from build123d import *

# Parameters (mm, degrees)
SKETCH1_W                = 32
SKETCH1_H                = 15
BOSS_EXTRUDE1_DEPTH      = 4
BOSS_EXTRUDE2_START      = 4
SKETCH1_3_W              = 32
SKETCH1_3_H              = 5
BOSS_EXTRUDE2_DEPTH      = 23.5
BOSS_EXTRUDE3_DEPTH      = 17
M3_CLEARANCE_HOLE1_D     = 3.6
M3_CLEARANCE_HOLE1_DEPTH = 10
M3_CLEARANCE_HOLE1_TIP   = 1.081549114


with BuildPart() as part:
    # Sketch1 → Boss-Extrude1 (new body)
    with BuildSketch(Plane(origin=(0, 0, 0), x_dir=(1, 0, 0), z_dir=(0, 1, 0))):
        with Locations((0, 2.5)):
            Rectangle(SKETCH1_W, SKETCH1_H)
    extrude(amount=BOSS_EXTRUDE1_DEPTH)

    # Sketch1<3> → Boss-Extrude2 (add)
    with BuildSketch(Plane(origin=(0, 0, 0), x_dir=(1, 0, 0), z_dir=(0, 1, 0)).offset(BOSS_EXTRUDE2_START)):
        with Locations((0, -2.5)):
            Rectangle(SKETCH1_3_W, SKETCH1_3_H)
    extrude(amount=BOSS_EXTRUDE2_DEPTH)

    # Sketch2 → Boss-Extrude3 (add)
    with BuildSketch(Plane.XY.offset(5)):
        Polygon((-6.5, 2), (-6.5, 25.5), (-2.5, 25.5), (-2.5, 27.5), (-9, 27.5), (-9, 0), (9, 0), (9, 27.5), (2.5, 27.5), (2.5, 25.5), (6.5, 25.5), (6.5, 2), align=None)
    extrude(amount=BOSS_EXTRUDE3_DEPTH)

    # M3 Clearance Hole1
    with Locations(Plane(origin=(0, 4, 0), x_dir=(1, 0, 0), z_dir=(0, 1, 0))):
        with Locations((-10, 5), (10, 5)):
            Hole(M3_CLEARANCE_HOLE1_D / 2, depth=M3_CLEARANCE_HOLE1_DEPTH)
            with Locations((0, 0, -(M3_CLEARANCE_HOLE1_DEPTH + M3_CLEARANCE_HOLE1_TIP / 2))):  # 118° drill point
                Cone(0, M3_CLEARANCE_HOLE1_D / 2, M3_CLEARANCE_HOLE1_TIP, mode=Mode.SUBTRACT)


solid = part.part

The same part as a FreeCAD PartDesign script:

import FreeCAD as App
import Part
import Sketcher
from FreeCAD import Vector


def add_polygon(sketch, points):
    """Adds a closed chain of lines whose ends are joined by coincident constraints."""
    first, n = sketch.GeometryCount, len(points)
    for a, b in zip(points, points[1:] + points[:1]):
        sketch.addGeometry(Part.LineSegment(App.Vector(*a, 0), App.Vector(*b, 0)), False)
    for i in range(n):
        sketch.addConstraint(Sketcher.Constraint("Coincident", first + i, 2, first + (i + 1) % n, 1))

doc = App.newDocument("Part")
body = doc.addObject("PartDesign::Body", "Body")

sketch1 = body.newObject("Sketcher::SketchObject", "Sketch")
sketch1.AttachmentSupport = (doc.getObject("XZ_Plane"), [""])
sketch1.MapMode = "FlatFace"
add_polygon(sketch1, [(-16, -10), (-16, 5), (16, 5), (16, -10)])
sketch1.addConstraint([
    Sketcher.Constraint("Vertical", 0),
    Sketcher.Constraint("Horizontal", 1),
    Sketcher.Constraint("Vertical", 2),
    Sketcher.Constraint("Horizontal", 3),
    Sketcher.Constraint("DistanceX", 1, 1, 1, 2, 32.0),
    Sketcher.Constraint("DistanceY", 0, 1, 0, 2, 15.0),
    Sketcher.Constraint("DistanceX", 0, 2, -1, 1, 16.0),
    Sketcher.Constraint("DistanceY", -1, 1, 0, 2, 5.0),
])
pad1 = body.newObject("PartDesign::Pad", "Pad")
pad1.Profile = sketch1
pad1.Length = 4
pad1.Reversed = True

sketch2 = body.newObject("Sketcher::SketchObject", "Sketch001")
sketch2.AttachmentSupport = (doc.getObject("XZ_Plane"), [""])
sketch2.MapMode = "FlatFace"
sketch2.AttachmentOffset = App.Placement(Vector(0, 0, -4), App.Rotation())
add_polygon(sketch2, [(-16, 0), (-16, 5), (16, 5), (16, 0)])
sketch2.addConstraint([
    Sketcher.Constraint("Vertical", 0),
    Sketcher.Constraint("Horizontal", 1),
    Sketcher.Constraint("Vertical", 2),
    Sketcher.Constraint("Horizontal", 3),
    Sketcher.Constraint("Symmetric", 2, 2, 3, 2, -1, 1),
    Sketcher.Constraint("DistanceX", 1, 1, 1, 2, 32.0),
    Sketcher.Constraint("DistanceY", 0, 1, 0, 2, 5.0),
])
pad2 = body.newObject("PartDesign::Pad", "Pad001")
pad2.Profile = sketch2
pad2.Length = 23.5
pad2.Reversed = True

sketch3 = body.newObject("Sketcher::SketchObject", "Sketch002")
sketch3.AttachmentSupport = (doc.getObject("XY_Plane"), [""])
sketch3.MapMode = "FlatFace"
sketch3.AttachmentOffset = App.Placement(Vector(0, 0, 5), App.Rotation())
add_polygon(sketch3, [(-6.5, 2), (-6.5, 25.5), (-2.5, 25.5), (-2.5, 27.5), (-9, 27.5), (-9, 0), (9, 0), (9, 27.5), (2.5, 27.5), (2.5, 25.5), (6.5, 25.5), (6.5, 2)])
sketch3.addConstraint([
    Sketcher.Constraint("Vertical", 0),
    Sketcher.Constraint("Horizontal", 1),
    Sketcher.Constraint("Vertical", 2),
    Sketcher.Constraint("Horizontal", 3),
    Sketcher.Constraint("Vertical", 4),
    Sketcher.Constraint("Horizontal", 5),
    Sketcher.Constraint("Vertical", 6),
    Sketcher.Constraint("Horizontal", 7),
    Sketcher.Constraint("Vertical", 8),
    Sketcher.Constraint("Horizontal", 9),
    Sketcher.Constraint("Vertical", 10),
    Sketcher.Constraint("Horizontal", 11),
    Sketcher.Constraint("Symmetric", 4, 2, 5, 2, -1, 1),
    Sketcher.Constraint("Symmetric", 2, 2, 7, 2, -2),
    Sketcher.Constraint("Symmetric", 0, 2, 9, 2, -2),
    Sketcher.Constraint("DistanceX", 1, 1, 1, 2, 4.0),
    Sketcher.Constraint("DistanceX", 5, 1, 5, 2, 18.0),
    Sketcher.Constraint("DistanceX", 11, 2, 11, 1, 13.0),
    Sketcher.Constraint("DistanceY", 2, 1, 2, 2, 2.0),
    Sketcher.Constraint("DistanceY", 0, 1, 0, 2, 23.5),
    Sketcher.Constraint("DistanceY", 4, 2, 4, 1, 27.5),
])
pad3 = body.newObject("PartDesign::Pad", "Pad002")
pad3.Profile = sketch3
pad3.Length = 17

sketch4 = body.newObject("Sketcher::SketchObject", "Sketch003")
sketch4.AttachmentSupport = (doc.getObject("XZ_Plane"), [""])
sketch4.MapMode = "FlatFace"
sketch4.AttachmentOffset = App.Placement(Vector(0, 0, -4), App.Rotation())
sketch4.addGeometry([
    Part.Circle(Vector(-10, -5, 0), Vector(0, 0, 1), 1.8),
    Part.Circle(Vector(10, -5, 0), Vector(0, 0, 1), 1.8),
], False)
sketch4.addConstraint([
    Sketcher.Constraint("Equal", 0, 1),
    Sketcher.Constraint("Symmetric", 0, 3, 1, 3, -2),
    Sketcher.Constraint("Diameter", 0, 3.6),
    Sketcher.Constraint("DistanceX", 0, 3, -1, 1, 10.0),
    Sketcher.Constraint("DistanceY", 0, 3, -1, 1, 5.0),
])
doc.recompute()
hole = body.newObject("PartDesign::Hole", "Hole")
hole.Profile = sketch4
hole.ThreadType = "None"
hole.Diameter = 3.6
hole.DepthType = "Dimension"
hole.Depth = 10
hole.DrillPoint = "Angled"
hole.DrillPointAngle = 118
hole.Reversed = True

doc.recompute()
